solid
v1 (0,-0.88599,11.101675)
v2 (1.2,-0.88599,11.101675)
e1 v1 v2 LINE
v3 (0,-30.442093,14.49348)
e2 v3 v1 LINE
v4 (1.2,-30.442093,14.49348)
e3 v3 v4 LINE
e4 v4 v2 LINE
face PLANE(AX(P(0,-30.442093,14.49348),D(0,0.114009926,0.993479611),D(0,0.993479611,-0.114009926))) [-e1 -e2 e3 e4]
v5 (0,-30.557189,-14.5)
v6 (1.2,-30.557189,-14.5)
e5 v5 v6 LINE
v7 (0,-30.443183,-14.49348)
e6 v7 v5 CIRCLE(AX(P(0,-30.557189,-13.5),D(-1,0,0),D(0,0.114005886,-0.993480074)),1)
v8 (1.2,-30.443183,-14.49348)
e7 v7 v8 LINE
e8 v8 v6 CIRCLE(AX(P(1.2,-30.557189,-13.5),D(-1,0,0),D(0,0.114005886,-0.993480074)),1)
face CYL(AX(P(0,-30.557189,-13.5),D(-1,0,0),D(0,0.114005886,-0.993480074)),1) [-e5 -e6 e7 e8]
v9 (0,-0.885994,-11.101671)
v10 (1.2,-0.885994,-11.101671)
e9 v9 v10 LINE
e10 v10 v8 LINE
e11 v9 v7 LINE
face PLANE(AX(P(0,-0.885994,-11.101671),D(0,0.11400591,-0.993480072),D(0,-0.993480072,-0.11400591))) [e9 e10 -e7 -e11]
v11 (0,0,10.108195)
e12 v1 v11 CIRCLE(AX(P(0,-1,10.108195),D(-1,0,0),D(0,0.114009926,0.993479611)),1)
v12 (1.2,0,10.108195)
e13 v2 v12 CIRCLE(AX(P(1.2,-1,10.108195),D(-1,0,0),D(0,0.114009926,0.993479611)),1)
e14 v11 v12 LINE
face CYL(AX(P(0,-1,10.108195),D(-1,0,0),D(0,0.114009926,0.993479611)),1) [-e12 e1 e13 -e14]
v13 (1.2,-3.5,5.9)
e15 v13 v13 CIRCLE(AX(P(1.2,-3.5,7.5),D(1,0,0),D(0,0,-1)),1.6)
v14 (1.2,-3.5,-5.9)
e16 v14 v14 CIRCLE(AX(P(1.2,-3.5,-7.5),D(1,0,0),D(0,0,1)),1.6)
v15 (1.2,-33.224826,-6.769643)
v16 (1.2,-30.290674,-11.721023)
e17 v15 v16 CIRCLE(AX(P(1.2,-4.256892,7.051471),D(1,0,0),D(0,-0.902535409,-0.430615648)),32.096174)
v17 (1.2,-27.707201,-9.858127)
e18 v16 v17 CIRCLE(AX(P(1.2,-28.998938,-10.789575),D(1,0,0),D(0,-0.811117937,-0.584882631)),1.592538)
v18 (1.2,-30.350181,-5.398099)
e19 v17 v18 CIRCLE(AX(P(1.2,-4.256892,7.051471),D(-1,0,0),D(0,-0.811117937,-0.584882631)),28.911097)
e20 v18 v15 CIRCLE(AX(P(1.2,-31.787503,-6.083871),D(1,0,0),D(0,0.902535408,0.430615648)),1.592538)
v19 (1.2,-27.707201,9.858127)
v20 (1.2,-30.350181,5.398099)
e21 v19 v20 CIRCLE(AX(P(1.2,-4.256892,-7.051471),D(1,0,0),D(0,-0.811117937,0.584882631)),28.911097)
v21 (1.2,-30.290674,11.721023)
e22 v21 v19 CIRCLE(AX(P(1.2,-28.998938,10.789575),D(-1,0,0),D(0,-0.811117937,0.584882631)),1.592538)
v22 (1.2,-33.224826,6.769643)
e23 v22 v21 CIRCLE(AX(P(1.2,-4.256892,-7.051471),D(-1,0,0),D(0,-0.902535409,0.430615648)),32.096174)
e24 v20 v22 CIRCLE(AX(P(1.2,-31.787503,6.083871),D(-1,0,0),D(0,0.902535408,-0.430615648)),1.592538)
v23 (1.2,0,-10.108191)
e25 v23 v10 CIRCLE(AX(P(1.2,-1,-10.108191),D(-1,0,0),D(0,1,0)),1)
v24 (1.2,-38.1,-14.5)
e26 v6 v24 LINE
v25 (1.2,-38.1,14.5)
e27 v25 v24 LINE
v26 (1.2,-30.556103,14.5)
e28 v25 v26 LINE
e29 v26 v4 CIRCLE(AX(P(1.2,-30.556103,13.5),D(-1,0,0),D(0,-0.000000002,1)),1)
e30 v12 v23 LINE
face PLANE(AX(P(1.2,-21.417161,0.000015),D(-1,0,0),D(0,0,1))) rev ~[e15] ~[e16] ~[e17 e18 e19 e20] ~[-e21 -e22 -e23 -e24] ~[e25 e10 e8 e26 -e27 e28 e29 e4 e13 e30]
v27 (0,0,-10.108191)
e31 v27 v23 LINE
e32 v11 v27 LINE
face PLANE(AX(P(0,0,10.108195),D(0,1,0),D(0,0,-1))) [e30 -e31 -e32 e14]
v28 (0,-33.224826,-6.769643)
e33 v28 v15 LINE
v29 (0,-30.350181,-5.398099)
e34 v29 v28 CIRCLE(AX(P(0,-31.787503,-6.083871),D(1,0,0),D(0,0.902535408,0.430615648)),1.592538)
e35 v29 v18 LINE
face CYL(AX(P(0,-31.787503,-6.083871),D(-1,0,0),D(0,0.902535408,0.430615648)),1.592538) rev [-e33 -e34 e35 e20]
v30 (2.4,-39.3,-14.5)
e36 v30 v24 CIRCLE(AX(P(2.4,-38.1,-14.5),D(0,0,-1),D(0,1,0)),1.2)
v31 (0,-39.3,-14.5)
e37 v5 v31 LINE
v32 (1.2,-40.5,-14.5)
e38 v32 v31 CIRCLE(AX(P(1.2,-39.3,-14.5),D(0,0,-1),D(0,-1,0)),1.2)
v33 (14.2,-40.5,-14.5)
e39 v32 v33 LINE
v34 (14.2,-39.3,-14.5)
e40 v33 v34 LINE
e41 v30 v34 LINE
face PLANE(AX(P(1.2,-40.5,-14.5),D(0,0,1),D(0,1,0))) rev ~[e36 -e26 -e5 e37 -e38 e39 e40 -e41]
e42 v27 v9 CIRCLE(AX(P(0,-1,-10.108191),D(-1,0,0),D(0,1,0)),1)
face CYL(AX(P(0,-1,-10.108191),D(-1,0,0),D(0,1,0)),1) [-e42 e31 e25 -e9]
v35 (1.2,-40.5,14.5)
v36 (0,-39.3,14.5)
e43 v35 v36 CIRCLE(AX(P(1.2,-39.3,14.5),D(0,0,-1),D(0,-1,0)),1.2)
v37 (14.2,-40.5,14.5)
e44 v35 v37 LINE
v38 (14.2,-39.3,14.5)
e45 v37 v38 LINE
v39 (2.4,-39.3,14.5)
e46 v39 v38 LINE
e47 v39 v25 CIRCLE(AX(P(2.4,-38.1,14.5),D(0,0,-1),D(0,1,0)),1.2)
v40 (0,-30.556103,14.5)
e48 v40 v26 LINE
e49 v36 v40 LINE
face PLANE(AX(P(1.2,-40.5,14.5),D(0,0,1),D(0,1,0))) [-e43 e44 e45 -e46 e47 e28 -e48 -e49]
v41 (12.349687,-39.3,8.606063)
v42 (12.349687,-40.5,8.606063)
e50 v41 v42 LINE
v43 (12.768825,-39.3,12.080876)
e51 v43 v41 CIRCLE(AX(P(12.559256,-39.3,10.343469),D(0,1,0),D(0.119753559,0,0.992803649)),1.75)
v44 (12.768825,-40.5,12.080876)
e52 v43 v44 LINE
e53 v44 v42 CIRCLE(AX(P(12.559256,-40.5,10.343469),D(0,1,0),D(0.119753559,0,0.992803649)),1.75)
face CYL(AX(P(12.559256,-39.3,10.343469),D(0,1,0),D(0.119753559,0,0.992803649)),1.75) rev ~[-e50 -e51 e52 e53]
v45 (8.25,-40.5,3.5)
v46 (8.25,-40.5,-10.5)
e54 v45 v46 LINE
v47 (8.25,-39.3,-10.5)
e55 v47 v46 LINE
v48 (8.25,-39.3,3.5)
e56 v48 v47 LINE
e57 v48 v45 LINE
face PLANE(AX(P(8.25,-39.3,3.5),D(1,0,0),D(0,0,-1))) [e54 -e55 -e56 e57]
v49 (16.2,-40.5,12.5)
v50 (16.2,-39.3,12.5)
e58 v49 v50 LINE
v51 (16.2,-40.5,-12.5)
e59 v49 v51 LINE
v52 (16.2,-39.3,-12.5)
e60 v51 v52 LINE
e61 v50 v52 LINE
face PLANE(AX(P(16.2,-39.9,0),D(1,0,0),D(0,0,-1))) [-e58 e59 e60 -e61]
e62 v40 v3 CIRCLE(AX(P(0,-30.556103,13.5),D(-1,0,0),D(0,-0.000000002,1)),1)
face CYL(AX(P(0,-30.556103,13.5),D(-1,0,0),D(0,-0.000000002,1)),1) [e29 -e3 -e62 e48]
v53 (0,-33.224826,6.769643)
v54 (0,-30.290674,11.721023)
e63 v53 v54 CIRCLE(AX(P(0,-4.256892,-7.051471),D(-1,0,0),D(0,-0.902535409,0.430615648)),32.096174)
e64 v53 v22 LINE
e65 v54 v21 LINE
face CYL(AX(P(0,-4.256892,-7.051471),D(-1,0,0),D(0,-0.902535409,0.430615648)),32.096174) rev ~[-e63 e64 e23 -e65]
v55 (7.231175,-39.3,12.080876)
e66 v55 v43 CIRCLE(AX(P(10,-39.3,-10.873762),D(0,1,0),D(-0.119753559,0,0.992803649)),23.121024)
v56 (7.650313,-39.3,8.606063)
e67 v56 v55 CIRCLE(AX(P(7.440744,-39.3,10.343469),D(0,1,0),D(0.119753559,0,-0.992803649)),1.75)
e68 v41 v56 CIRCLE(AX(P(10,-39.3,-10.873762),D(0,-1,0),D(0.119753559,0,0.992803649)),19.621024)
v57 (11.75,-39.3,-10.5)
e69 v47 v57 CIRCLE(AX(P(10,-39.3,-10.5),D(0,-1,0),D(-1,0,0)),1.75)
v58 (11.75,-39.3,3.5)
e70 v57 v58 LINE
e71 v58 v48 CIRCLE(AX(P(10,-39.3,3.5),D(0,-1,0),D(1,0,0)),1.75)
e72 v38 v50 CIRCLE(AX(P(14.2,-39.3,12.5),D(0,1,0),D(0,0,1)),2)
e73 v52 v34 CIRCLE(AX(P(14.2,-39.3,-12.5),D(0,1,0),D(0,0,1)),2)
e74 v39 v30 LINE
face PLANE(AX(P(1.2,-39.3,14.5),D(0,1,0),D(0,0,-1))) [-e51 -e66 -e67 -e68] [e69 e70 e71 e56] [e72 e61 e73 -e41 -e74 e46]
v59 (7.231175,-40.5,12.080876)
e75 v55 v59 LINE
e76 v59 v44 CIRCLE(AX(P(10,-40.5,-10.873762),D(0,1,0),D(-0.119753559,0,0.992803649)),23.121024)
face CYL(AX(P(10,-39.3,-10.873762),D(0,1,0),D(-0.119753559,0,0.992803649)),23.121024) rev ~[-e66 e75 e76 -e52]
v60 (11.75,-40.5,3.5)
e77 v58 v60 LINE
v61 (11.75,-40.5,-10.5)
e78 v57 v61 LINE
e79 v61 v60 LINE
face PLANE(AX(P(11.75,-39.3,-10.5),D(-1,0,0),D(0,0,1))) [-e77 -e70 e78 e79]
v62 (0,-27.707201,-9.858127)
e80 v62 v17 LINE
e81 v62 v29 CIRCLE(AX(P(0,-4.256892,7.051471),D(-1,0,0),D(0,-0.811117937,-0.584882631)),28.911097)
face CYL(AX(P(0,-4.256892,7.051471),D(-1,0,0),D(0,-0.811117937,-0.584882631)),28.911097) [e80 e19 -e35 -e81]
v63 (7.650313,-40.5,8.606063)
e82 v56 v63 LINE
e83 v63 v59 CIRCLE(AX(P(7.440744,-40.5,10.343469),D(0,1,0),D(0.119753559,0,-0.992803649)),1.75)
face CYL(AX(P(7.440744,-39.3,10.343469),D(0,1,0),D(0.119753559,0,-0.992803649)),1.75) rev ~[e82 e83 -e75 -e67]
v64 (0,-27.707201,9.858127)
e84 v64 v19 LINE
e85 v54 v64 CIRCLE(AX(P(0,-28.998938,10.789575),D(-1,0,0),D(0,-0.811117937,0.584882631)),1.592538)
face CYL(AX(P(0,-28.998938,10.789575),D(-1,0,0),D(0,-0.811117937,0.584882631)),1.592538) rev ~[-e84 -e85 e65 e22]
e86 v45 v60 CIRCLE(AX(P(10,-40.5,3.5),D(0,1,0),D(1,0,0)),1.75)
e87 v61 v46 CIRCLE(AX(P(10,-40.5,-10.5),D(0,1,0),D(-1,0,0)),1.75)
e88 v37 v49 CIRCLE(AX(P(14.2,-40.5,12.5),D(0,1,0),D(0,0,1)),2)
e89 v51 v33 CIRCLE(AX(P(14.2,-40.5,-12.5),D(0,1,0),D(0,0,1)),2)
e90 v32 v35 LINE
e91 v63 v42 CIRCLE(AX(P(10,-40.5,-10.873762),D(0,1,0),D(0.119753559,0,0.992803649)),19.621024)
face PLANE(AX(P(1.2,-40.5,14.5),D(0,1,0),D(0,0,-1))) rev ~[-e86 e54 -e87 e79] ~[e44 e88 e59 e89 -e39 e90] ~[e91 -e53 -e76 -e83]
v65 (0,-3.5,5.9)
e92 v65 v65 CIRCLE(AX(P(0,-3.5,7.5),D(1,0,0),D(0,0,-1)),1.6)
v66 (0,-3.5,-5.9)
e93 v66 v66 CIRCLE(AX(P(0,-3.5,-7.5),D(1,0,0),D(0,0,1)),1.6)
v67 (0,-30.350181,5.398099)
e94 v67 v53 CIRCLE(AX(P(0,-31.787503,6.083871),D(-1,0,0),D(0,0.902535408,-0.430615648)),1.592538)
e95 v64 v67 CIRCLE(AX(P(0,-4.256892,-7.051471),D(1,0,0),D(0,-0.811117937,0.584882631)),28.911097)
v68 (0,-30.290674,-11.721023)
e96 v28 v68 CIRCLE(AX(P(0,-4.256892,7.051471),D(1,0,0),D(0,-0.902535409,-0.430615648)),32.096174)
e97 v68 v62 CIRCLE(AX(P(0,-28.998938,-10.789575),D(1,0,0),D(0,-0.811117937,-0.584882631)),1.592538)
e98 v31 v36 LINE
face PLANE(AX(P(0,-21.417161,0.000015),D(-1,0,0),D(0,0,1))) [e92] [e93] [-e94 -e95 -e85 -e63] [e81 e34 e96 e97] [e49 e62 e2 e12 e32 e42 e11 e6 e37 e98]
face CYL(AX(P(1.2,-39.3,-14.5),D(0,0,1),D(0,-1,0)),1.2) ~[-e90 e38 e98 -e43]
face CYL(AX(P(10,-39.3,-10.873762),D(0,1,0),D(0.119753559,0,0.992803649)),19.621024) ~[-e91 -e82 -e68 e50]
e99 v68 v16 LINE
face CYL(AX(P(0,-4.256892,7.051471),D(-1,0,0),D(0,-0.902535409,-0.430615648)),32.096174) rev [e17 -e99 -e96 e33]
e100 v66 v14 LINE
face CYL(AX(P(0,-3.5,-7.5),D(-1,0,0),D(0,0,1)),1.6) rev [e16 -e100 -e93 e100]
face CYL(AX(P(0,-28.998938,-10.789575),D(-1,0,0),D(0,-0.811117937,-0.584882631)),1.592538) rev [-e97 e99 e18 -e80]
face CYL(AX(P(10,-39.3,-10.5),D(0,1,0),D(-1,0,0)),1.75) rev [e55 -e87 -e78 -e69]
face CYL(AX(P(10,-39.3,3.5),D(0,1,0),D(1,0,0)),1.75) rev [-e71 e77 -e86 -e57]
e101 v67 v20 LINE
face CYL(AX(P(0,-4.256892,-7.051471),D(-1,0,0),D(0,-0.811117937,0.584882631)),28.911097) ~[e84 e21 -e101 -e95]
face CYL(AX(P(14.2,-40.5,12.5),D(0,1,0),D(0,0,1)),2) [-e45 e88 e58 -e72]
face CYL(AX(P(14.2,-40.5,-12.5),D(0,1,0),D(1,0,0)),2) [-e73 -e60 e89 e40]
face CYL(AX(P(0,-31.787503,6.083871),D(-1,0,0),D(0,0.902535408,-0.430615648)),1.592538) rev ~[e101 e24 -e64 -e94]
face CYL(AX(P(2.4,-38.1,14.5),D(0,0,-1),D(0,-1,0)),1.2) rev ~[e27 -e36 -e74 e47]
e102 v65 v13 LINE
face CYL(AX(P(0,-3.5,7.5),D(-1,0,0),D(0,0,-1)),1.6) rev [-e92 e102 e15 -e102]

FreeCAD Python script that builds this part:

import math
import FreeCAD as App
import Part
import Sketcher
from FreeCAD import Vector
Q = App.Units.Quantity


def edges_at(feature, points):
    """Names of the edges that pass closest to the given points."""
    edges = feature.Shape.Edges
    near = lambda p: min(range(len(edges)), key=lambda i: edges[i].distToShape(Part.Vertex(*p))[0])
    return sorted({f"Edge{near(p) + 1}" for p in points})


def add_polygon(sketch, points):
    """Adds a closed chain of lines whose ends are joined by coincident constraints."""
    first, n = sketch.GeometryCount, len(points)
    for a, b in zip(points, points[1:] + points[:1]):
        sketch.addGeometry(Part.LineSegment(App.Vector(*a, 0), App.Vector(*b, 0)), False)
    for i in range(n):
        sketch.addConstraint(Sketcher.Constraint("Coincident", first + i, 2, first + (i + 1) % n, 1))

doc = App.newDocument("Part")
body = doc.addObject("PartDesign::Body", "Body")

sketch1 = body.newObject("Sketcher::SketchObject", "Sketch")
sketch1.AttachmentSupport = (doc.getObject("YZ_Plane"), [""])
sketch1.MapMode = "FlatFace"
sketch1.addGeometry(Part.ArcOfCircle(Part.Circle(Vector(-1, -10.11, 0), Vector(0, 0, 1), 1), math.radians(-83), math.radians(0)), False)
sketch1.addGeometry(Part.LineSegment(Vector(0, -10.11, 0), Vector(0, 10.11, 0)), False)
sketch1.addGeometry(Part.ArcOfCircle(Part.Circle(Vector(-1, 10.11, 0), Vector(0, 0, 1), 1), math.radians(0), math.radians(83)), False)
sketch1.addGeometry(Part.LineSegment(Vector(-0.89, 11.1, 0), Vector(-30.44, 14.49, 0)), False)
sketch1.addGeometry(Part.ArcOfCircle(Part.Circle(Vector(-30.56, 13.5, 0), Vector(0, 0, 1), 1), math.radians(83.45), math.radians(90)), False)
sketch1.addGeometry(Part.LineSegment(Vector(-30.56, 14.5, 0), Vector(-40.5, 14.5, 0)), False)
sketch1.addGeometry(Part.LineSegment(Vector(-40.5, 14.5, 0), Vector(-40.5, -14.5, 0)), False)
sketch1.addGeometry(Part.LineSegment(Vector(-40.5, -14.5, 0), Vector(-30.56, -14.5, 0)), False)
sketch1.addGeometry(Part.ArcOfCircle(Part.Circle(Vector(-30.56, -13.5, 0), Vector(0, 0, 1), 1), math.radians(-90), math.radians(-83.45)), False)
sketch1.addGeometry(Part.LineSegment(Vector(-30.44, -14.49, 0), Vector(-0.89, -11.1, 0)), False)
sketch1.addGeometry(Part.ArcOfCircle(Part.Circle(Vector(-31.79, -6.08, 0), Vector(0, 0, 1), 1.59), math.radians(26), math.radians(206)), False)
sketch1.addGeometry(Part.ArcOfCircle(Part.Circle(Vector(-4.26, 7.05, 0), Vector(0, 0, 1), 28.91), math.radians(-154.49), math.radians(-144.21)), False)
sketch1.addGeometry(Part.ArcOfCircle(Part.Circle(Vector(-29, -10.79, 0), Vector(0, 0, 1), 1.59), math.radians(-144), math.radians(36)), False)
sketch1.addGeometry(Part.ArcOfCircle(Part.Circle(Vector(-4.26, 7.05, 0), Vector(0, 0, 1), 32.1), math.radians(-154.49), math.radians(-144.21)), False)
sketch1.addGeometry(Part.ArcOfCircle(Part.Circle(Vector(-4.26, -7.05, 0), Vector(0, 0, 1), 32.1), math.radians(144.21), math.radians(154.49)), False)
sketch1.addGeometry(Part.ArcOfCircle(Part.Circle(Vector(-29, 10.79, 0), Vector(0, 0, 1), 1.59), math.radians(-36), math.radians(144)), False)
sketch1.addGeometry(Part.ArcOfCircle(Part.Circle(Vector(-4.26, -7.05, 0), Vector(0, 0, 1), 28.91), math.radians(144.21), math.radians(154.49)), False)
sketch1.addGeometry(Part.ArcOfCircle(Part.Circle(Vector(-31.79, 6.08, 0), Vector(0, 0, 1), 1.59), math.radians(154), math.radians(334)), False)
sketch1.addGeometry(Part.Circle(Vector(-3.5, -7.5, 0), Vector(0, 0, 1), 1.6), False)
sketch1.addGeometry(Part.Circle(Vector(-3.5, 7.5, 0), Vector(0, 0, 1), 1.6), False)
sketch1.addConstraint(Sketcher.Constraint("Tangent", 0, 2, 1, 1))
sketch1.addConstraint(Sketcher.Constraint("Tangent", 1, 2, 2, 1))
sketch1.addConstraint(Sketcher.Constraint("Tangent", 2, 2, 3, 1))
sketch1.addConstraint(Sketcher.Constraint("Tangent", 3, 2, 4, 1))
sketch1.addConstraint(Sketcher.Constraint("Tangent", 4, 2, 5, 1))
sketch1.addConstraint(Sketcher.Constraint("Coincident", 5, 2, 6, 1))
sketch1.addConstraint(Sketcher.Constraint("Coincident", 6, 2, 7, 1))
sketch1.addConstraint(Sketcher.Constraint("Tangent", 7, 2, 8, 1))
sketch1.addConstraint(Sketcher.Constraint("Tangent", 8, 2, 9, 1))
sketch1.addConstraint(Sketcher.Constraint("Tangent", 9, 2, 0, 1))
sketch1.addConstraint(Sketcher.Constraint("Tangent", 10, 1, 11, 1))
sketch1.addConstraint(Sketcher.Constraint("Tangent", 11, 2, 12, 2))
sketch1.addConstraint(Sketcher.Constraint("Tangent", 12, 1, 13, 2))
sketch1.addConstraint(Sketcher.Constraint("Tangent", 13, 1, 10, 2))
sketch1.addConstraint(Sketcher.Constraint("Tangent", 14, 1, 15, 2))
sketch1.addConstraint(Sketcher.Constraint("Tangent", 15, 1, 16, 1))
sketch1.addConstraint(Sketcher.Constraint("Tangent", 16, 2, 17, 2))
sketch1.addConstraint(Sketcher.Constraint("Tangent", 17, 1, 14, 2))
sketch1.addConstraint(Sketcher.Constraint("Vertical", 1))
sketch1.addConstraint(Sketcher.Constraint("Horizontal", 5))
sketch1.addConstraint(Sketcher.Constraint("Vertical", 6))
sketch1.addConstraint(Sketcher.Constraint("Horizontal", 7))
sketch1.addConstraint(Sketcher.Constraint("Coincident", 13, 3, 11, 3))
sketch1.addConstraint(Sketcher.Constraint("Coincident", 16, 3, 14, 3))
sketch1.addConstraint(Sketcher.Constraint("Equal", 0, 2))
sketch1.addConstraint(Sketcher.Constraint("Equal", 2, 4))
sketch1.addConstraint(Sketcher.Constraint("Equal", 4, 8))
sketch1.addConstraint(Sketcher.Constraint("Equal", 13, 14))
sketch1.addConstraint(Sketcher.Constraint("Equal", 12, 15))
sketch1.addConstraint(Sketcher.Constraint("Equal", 18, 19))
sketch1.addConstraint(Sketcher.Constraint("Symmetric", 0, 2, 1, 2, -1, 1))
sketch1.addConstraint(Sketcher.Constraint("Symmetric", 11, 3, 14, 3, -1))
sketch1.addConstraint(Sketcher.Constraint("Symmetric", 18, 3, 19, 3, -1))
sketch1.addConstraint(Sketcher.Constraint("Vertical", 12, 3, 15, 3))
sketch1.addConstraint(Sketcher.Constraint("Vertical", 10, 3, 17, 3))
sketch1.addConstraint(Sketcher.Constraint("Radius", 0, Q("1 mm")))
sketch1.addConstraint(Sketcher.Constraint("Diameter", 18, Q("3.2 mm")))
sketch1.addConstraint(Sketcher.Constraint("DistanceY", 6, 2, 6, 1, Q("29 mm")))
sketch1.addConstraint(Sketcher.Constraint("DistanceY", -1, 1, 4, 3, Q("13.5 mm")))
sketch1.addConstraint(Sketcher.Constraint("DistanceX", 18, 3, -1, 1, Q("3.5 mm")))
sketch1.addConstraint(Sketcher.Constraint("DistanceY", 18, 3, -1, 1, Q("7.5 mm")))
sketch1.addConstraint(Sketcher.Constraint("DistanceX", 5, 2, -1, 1, Q("40.5 mm")))
sketch1.addConstraint(Sketcher.Constraint("Radius", 10, Q("1.592538 mm")))
sketch1.addConstraint(Sketcher.Constraint("Radius", 11, Q("28.911097 mm")))
sketch1.addConstraint(Sketcher.Constraint("DistanceX", 7, 1, 7, 2, Q("9.942811 mm")))
sketch1.addConstraint(Sketcher.Constraint("DistanceY", 10, 1, -1, 1, Q("5.398099 mm")))
sketch1.addConstraint(Sketcher.Constraint("DistanceX", 11, 2, -1, 1, Q("27.707201 mm")))
sketch1.addConstraint(Sketcher.Constraint("DistanceX", 10, 3, 4, 3, Q("1.2314 mm")))
sketch1.addConstraint(Sketcher.Constraint("DistanceX", 11, 3, 2, 2, Q("3.370902 mm")))
sketch1.addConstraint(Sketcher.Constraint("DistanceY", 9, 2, 16, 3, Q("4.0502 mm")))
sketch1.addConstraint(Sketcher.Constraint("DistanceX", 4, 3, 15, 1, Q("2.848901 mm")))
pad1 = body.newObject("PartDesign::Pad", "Pad")
pad1.Profile = sketch1
pad1.Length = 1.2

sketch2 = body.newObject("Sketcher::SketchObject", "Sketch001")
sketch2.AttachmentSupport = (doc.getObject("YZ_Plane"), [""])
sketch2.MapMode = "FlatFace"
sketch2.AttachmentOffset = App.Placement(Vector(0, 0, 1.2), App.Rotation())
add_polygon(sketch2, [(-39.3, 14.5), (-40.5, 14.5), (-40.5, -14.5), (-39.3, -14.5)])
sketch2.addConstraint(Sketcher.Constraint("Horizontal", 0))
sketch2.addConstraint(Sketcher.Constraint("Vertical", 1))
sketch2.addConstraint(Sketcher.Constraint("Horizontal", 2))
sketch2.addConstraint(Sketcher.Constraint("Vertical", 3))
sketch2.addConstraint(Sketcher.Constraint("DistanceY", 1, 2, 1, 1, Q("29 mm")))
sketch2.addConstraint(Sketcher.Constraint("DistanceX", 0, 2, 0, 1, Q("1.2 mm")))
sketch2.addConstraint(Sketcher.Constraint("DistanceX", 0, 2, -1, 1, Q("40.5 mm")))
sketch2.addConstraint(Sketcher.Constraint("DistanceY", -1, 1, 0, 2, Q("14.5 mm")))
pad2 = body.newObject("PartDesign::Pad", "Pad001")
pad2.Profile = sketch2
pad2.Length = 15

sketch3 = body.newObject("Sketcher::SketchObject", "Sketch002")
sketch3.AttachmentSupport = (doc.getObject("XZ_Plane"), [""])
sketch3.MapMode = "FlatFace"
sketch3.AttachmentOffset = App.Placement(Vector(0, 0, 39.3), App.Rotation())
sketch3.addGeometry(Part.LineSegment(Vector(8.2, -10.5, 0), Vector(8.2, 3.5, 0)), False)
sketch3.addGeometry(Part.ArcOfCircle(Part.Circle(Vector(10, 3.5, 0), Vector(0, 0, 1), 1.8), math.radians(0), math.radians(180)), False)
sketch3.addGeometry(Part.LineSegment(Vector(11.8, 3.5, 0), Vector(11.8, -10.5, 0)), False)
sketch3.addGeometry(Part.ArcOfCircle(Part.Circle(Vector(10, -10.5, 0), Vector(0, 0, 1), 1.8), math.radians(180), math.radians(360)), False)
sketch3.addGeometry(Part.ArcOfCircle(Part.Circle(Vector(10, -10.9, 0), Vector(0, 0, 1), 23.1), math.radians(83.12), math.radians(96.88)), False)
sketch3.addGeometry(Part.ArcOfCircle(Part.Circle(Vector(12.6, 10.3, 0), Vector(0, 0, 1), 1.8), math.radians(-97), math.radians(83)), False)
sketch3.addGeometry(Part.ArcOfCircle(Part.Circle(Vector(10, -10.9, 0), Vector(0, 0, 1), 19.6), math.radians(83.12), math.radians(96.88)), False)
sketch3.addGeometry(Part.ArcOfCircle(Part.Circle(Vector(7.4, 10.3, 0), Vector(0, 0, 1), 1.8), math.radians(97), math.radians(277)), False)
sketch3.addConstraint(Sketcher.Constraint("Tangent", 0, 2, 1, 2))
sketch3.addConstraint(Sketcher.Constraint("Tangent", 1, 1, 2, 1))
sketch3.addConstraint(Sketcher.Constraint("Tangent", 2, 2, 3, 2))
sketch3.addConstraint(Sketcher.Constraint("Tangent", 3, 1, 0, 1))
sketch3.addConstraint(Sketcher.Constraint("Tangent", 4, 1, 5, 2))
sketch3.addConstraint(Sketcher.Constraint("Tangent", 5, 1, 6, 1))
sketch3.addConstraint(Sketcher.Constraint("Tangent", 6, 2, 7, 2))
sketch3.addConstraint(Sketcher.Constraint("Tangent", 7, 1, 4, 2))
sketch3.addConstraint(Sketcher.Constraint("Vertical", 0))
sketch3.addConstraint(Sketcher.Constraint("Vertical", 2))
sketch3.addConstraint(Sketcher.Constraint("Coincident", 6, 3, 4, 3))
sketch3.addConstraint(Sketcher.Constraint("Equal", 3, 5))
sketch3.addConstraint(Sketcher.Constraint("Horizontal", 5, 3, 7, 3))
sketch3.addConstraint(Sketcher.Constraint("Vertical", 3, 3, 4, 3))
sketch3.addConstraint(Sketcher.Constraint("DistanceY", 0, 1, 0, 2, Q("14 mm")))
sketch3.addConstraint(Sketcher.Constraint("Radius", 1, Q("1.75 mm")))
sketch3.addConstraint(Sketcher.Constraint("DistanceX", -1, 1, 1, 3, Q("10 mm")))
sketch3.addConstraint(Sketcher.Constraint("DistanceY", -1, 1, 1, 3, Q("3.5 mm")))
sketch3.addConstraint(Sketcher.Constraint("Radius", 4, Q("23.121024 mm")))
sketch3.addConstraint(Sketcher.Constraint("DistanceY", 4, 3, -1, 1, Q("10.873762 mm")))
sketch3.addConstraint(Sketcher.Constraint("DistanceY", -1, 1, 5, 3, Q("10.343469 mm")))
pocket1 = body.newObject("PartDesign::Pocket", "Pocket")
pocket1.Profile = sketch3
pocket1.Type = "ThroughAll"
pocket1.Reversed = True
doc.recompute()

fillet = body.newObject("PartDesign::Fillet", "Fillet")
fillet.Base = (pocket1, edges_at(pocket1, [(1.2, -39.3, 0)]))
fillet.Radius = 1.2
doc.recompute()

fillet2 = body.newObject("PartDesign::Fillet", "Fillet001")
fillet2.Base = (fillet, edges_at(fillet, [(0, -40.5, 0)]))
fillet2.Radius = 1.2
doc.recompute()

fillet3 = body.newObject("PartDesign::Fillet", "Fillet002")
fillet3.Base = (fillet2, edges_at(fillet2, [(16.2, -39.9, 14.5), (16.2, -39.9, -14.5)]))
fillet3.Radius = 2

doc.recompute()
